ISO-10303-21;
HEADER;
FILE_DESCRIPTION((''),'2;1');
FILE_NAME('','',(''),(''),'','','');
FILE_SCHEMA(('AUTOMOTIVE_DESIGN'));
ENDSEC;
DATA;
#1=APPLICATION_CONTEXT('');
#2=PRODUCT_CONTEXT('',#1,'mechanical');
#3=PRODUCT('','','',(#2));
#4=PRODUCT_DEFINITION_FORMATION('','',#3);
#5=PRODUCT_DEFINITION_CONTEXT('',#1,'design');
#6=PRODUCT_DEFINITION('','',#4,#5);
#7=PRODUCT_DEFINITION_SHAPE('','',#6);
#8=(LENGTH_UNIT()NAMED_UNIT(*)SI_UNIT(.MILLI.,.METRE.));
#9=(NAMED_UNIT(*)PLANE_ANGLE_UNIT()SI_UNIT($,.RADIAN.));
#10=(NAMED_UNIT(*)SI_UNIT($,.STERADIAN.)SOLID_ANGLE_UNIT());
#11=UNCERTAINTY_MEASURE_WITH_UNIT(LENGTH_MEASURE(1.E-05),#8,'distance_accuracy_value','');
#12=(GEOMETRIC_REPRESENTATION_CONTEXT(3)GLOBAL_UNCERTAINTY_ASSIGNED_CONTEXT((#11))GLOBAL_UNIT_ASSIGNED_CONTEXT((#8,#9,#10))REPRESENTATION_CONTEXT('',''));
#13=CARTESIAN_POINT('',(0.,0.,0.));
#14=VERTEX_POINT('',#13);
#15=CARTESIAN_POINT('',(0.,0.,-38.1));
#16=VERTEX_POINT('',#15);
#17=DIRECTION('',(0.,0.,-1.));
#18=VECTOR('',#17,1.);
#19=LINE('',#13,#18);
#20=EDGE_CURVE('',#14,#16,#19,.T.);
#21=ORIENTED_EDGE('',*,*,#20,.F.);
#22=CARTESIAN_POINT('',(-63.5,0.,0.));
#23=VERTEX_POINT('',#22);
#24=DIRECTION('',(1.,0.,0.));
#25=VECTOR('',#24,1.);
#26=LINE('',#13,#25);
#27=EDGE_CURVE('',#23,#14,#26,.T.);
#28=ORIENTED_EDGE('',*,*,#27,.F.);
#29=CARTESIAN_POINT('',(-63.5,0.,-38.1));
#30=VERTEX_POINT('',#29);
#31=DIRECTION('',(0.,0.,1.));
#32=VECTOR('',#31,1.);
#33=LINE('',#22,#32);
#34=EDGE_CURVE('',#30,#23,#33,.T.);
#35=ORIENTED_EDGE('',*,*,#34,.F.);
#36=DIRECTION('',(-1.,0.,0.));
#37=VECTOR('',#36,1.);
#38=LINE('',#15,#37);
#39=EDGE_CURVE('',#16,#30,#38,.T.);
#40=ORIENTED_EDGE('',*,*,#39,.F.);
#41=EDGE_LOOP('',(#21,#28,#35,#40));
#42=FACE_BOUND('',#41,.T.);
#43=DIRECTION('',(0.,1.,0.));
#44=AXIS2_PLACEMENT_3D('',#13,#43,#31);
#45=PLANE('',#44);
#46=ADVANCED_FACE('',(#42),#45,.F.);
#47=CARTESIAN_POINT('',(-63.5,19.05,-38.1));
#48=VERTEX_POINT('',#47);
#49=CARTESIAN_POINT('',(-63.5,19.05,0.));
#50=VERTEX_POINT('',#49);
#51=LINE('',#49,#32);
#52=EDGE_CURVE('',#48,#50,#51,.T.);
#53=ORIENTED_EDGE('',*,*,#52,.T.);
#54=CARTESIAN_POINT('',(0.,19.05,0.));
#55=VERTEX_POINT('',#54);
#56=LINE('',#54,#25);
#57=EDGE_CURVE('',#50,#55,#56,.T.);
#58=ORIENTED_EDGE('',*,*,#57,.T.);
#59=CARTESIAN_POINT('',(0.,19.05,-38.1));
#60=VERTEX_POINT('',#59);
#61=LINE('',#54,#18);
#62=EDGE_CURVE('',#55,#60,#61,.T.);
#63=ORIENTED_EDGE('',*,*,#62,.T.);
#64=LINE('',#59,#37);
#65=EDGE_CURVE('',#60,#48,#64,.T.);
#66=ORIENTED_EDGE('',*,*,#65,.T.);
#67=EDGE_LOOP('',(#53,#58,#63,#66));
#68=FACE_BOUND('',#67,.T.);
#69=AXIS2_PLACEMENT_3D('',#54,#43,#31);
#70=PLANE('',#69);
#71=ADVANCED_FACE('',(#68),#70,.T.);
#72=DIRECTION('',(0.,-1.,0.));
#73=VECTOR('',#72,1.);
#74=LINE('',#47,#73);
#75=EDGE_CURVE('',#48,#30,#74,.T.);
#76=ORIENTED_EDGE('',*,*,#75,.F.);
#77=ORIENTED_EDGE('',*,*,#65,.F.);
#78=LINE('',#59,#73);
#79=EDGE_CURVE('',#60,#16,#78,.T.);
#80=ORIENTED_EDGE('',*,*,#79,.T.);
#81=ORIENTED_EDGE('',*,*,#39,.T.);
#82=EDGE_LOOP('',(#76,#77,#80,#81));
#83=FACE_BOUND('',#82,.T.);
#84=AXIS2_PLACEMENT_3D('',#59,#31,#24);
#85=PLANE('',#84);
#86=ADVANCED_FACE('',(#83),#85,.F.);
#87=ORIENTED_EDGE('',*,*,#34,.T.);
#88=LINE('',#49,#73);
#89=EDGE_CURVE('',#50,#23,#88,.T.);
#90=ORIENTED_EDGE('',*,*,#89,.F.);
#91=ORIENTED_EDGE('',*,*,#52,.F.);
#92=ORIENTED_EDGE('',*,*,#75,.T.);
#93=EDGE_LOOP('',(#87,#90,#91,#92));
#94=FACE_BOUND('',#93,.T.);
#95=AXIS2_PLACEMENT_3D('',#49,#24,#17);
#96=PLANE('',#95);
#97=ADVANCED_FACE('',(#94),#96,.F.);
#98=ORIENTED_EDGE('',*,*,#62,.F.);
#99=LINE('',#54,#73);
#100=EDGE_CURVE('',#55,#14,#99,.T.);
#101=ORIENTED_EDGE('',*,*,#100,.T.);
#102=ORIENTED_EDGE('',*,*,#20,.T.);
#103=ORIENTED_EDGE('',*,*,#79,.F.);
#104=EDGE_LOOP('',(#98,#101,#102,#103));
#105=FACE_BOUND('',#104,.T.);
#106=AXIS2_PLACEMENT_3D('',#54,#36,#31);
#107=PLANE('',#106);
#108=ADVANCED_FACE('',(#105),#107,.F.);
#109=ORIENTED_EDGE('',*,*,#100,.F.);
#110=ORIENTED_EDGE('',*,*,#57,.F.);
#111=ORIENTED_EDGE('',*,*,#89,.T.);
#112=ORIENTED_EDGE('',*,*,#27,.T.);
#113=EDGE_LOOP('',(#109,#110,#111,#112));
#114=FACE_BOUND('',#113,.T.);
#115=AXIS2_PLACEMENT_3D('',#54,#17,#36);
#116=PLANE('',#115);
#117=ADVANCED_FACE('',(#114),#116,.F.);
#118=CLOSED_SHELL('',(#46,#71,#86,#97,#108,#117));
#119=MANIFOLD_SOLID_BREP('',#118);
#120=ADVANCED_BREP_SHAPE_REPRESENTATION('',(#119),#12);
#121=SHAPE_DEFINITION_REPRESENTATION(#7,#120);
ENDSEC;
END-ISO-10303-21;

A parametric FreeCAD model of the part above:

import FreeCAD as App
import Part
import Sketcher

V = App.Vector
Q = App.Units.Quantity

doc = App.newDocument("Part")
body = doc.addObject("PartDesign::Body", "Body")

sketch1 = body.newObject("Sketcher::SketchObject", "Sketch")
sketch1.AttachmentSupport = (doc.getObject("XZ_Plane"), [""])
sketch1.MapMode = "FlatFace"
sketch1.addGeometry(Part.LineSegment(V(-64, -38, 0), V(-64, 0, 0)), False)
sketch1.addGeometry(Part.LineSegment(V(-64, 0, 0), V(0, 0, 0)), False)
sketch1.addGeometry(Part.LineSegment(V(0, 0, 0), V(0, -38, 0)), False)
sketch1.addGeometry(Part.LineSegment(V(0, -38, 0), V(-64, -38, 0)), False)
sketch1.addConstraint(Sketcher.Constraint("Coincident", 0, 2, 1, 1))
sketch1.addConstraint(Sketcher.Constraint("Coincident", 1, 2, 2, 1))
sketch1.addConstraint(Sketcher.Constraint("Coincident", 2, 2, 3, 1))
sketch1.addConstraint(Sketcher.Constraint("Coincident", 3, 2, 0, 1))
sketch1.addConstraint(Sketcher.Constraint("Vertical", 0))
sketch1.addConstraint(Sketcher.Constraint("Horizontal", 1))
sketch1.addConstraint(Sketcher.Constraint("Vertical", 2))
sketch1.addConstraint(Sketcher.Constraint("Horizontal", 3))
sketch1.addConstraint(Sketcher.Constraint("Coincident", 1, 2, -1, 1))
sketch1.addConstraint(Sketcher.Constraint("DistanceX", 1, 1, 1, 2, Q("2.5 in")))
sketch1.addConstraint(Sketcher.Constraint("DistanceY", 0, 1, 0, 2, Q("1.5 in")))
pad1 = body.newObject("PartDesign::Pad", "Pad")
pad1.Profile = sketch1
pad1.Length = Q("0.75 in")
pad1.Reversed = True

doc.recompute()
